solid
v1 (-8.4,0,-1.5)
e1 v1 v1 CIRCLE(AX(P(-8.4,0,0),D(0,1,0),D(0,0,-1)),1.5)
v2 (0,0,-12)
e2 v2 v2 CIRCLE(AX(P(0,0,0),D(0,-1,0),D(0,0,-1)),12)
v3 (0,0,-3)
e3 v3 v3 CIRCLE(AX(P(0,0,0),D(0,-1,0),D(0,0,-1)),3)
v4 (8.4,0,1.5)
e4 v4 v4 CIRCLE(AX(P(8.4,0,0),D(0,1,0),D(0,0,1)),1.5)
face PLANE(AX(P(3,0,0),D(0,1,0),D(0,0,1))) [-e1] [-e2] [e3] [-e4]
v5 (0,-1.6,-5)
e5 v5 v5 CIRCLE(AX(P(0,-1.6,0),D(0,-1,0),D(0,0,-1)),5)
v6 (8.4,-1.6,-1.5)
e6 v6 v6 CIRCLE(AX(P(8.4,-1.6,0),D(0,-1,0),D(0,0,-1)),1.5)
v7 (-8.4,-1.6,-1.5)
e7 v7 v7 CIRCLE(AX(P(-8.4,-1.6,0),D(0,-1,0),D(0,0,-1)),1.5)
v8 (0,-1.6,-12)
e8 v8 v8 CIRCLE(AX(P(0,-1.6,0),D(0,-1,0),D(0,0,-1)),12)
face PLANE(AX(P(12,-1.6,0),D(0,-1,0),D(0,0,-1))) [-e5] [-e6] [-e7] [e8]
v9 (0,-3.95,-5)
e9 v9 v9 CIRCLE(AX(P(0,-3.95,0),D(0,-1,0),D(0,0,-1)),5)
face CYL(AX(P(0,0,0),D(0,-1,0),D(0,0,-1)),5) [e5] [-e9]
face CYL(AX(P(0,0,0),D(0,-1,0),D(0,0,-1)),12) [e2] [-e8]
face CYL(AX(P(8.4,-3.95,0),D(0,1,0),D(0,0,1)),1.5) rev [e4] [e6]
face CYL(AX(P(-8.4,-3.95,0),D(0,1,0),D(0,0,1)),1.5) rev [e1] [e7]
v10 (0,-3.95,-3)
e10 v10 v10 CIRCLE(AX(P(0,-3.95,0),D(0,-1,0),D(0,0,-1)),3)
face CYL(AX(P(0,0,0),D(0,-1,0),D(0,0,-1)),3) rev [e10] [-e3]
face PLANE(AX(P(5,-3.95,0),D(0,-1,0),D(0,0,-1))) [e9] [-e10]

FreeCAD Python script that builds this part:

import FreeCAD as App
import Part
import Sketcher
from FreeCAD import Vector

doc = App.newDocument("Part")
body = doc.addObject("PartDesign::Body", "Body")

# Sketch on XY plane
sketch1 = body.newObject("Sketcher::SketchObject", "Sketch")
sketch1.AttachmentSupport = (doc.getObject("XY_Plane"), [""])
sketch1.MapMode = "FlatFace"
sketch1.addGeometry([
    Part.LineSegment(Vector(12, -1.6, 0), Vector(12, 0, 0)),  # 0
    Part.LineSegment(Vector(12, 0, 0), Vector(3, 0, 0)),  # 1
    Part.LineSegment(Vector(3, 0, 0), Vector(3, -4, 0)),  # 2
    Part.LineSegment(Vector(3, -4, 0), Vector(5, -4, 0)),  # 3
    Part.LineSegment(Vector(5, -4, 0), Vector(5, -1.6, 0)),  # 4
    Part.LineSegment(Vector(5, -1.6, 0), Vector(12, -1.6, 0)),  # 5
], False)
sketch1.addConstraint([
    Sketcher.Constraint("Coincident", 0, 2, 1, 1),
    Sketcher.Constraint("Coincident", 1, 2, 2, 1),
    Sketcher.Constraint("Coincident", 2, 2, 3, 1),
    Sketcher.Constraint("Coincident", 3, 2, 4, 1),
    Sketcher.Constraint("Coincident", 4, 2, 5, 1),
    Sketcher.Constraint("Coincident", 5, 2, 0, 1),
    Sketcher.Constraint("Vertical", 0),
    Sketcher.Constraint("Horizontal", 1),
    Sketcher.Constraint("Vertical", 2),
    Sketcher.Constraint("Horizontal", 3),
    Sketcher.Constraint("Vertical", 4),
    Sketcher.Constraint("Horizontal", 5),
    Sketcher.Constraint("PointOnObject", 0, 2, -1),
    Sketcher.Constraint("DistanceX", 1, 2, 1, 1, 9.0),
    Sketcher.Constraint("DistanceX", 3, 1, 3, 2, 2.0),
    Sketcher.Constraint("DistanceY", 0, 1, 0, 2, 1.6),
    Sketcher.Constraint("DistanceX", -1, 1, 0, 2, 12.0),
    Sketcher.Constraint("DistanceY", 2, 2, 2, 1, 3.95),
])
revolution = body.newObject("PartDesign::Revolution", "Revolution")
revolution.Profile = sketch1
revolution.ReferenceAxis = (sketch1, ["V_Axis"])
revolution.Angle = 360

# Sketch on XZ plane
sketch2 = body.newObject("Sketcher::SketchObject", "Sketch001")
sketch2.AttachmentSupport = (doc.getObject("XZ_Plane"), [""])
sketch2.MapMode = "FlatFace"
sketch2.addGeometry([
    Part.Circle(Vector(8.4, 0, 0), Vector(0, 0, 1), 1.5),
    Part.Circle(Vector(-8.4, 0, 0), Vector(0, 0, 1), 1.5),
], False)
sketch2.addConstraint([
    Sketcher.Constraint("Equal", 0, 1),
    Sketcher.Constraint("Symmetric", 0, 3, 1, 3, -1, 1),
    Sketcher.Constraint("PointOnObject", 0, 3, -1),
    Sketcher.Constraint("Diameter", 0, 3.0),
    Sketcher.Constraint("DistanceX", -1, 1, 0, 3, 8.4),
])
pocket1 = body.newObject("PartDesign::Pocket", "Pocket")
pocket1.Profile = sketch2
pocket1.Type = "ThroughAll"
pocket1.Reversed = True

doc.recompute()
